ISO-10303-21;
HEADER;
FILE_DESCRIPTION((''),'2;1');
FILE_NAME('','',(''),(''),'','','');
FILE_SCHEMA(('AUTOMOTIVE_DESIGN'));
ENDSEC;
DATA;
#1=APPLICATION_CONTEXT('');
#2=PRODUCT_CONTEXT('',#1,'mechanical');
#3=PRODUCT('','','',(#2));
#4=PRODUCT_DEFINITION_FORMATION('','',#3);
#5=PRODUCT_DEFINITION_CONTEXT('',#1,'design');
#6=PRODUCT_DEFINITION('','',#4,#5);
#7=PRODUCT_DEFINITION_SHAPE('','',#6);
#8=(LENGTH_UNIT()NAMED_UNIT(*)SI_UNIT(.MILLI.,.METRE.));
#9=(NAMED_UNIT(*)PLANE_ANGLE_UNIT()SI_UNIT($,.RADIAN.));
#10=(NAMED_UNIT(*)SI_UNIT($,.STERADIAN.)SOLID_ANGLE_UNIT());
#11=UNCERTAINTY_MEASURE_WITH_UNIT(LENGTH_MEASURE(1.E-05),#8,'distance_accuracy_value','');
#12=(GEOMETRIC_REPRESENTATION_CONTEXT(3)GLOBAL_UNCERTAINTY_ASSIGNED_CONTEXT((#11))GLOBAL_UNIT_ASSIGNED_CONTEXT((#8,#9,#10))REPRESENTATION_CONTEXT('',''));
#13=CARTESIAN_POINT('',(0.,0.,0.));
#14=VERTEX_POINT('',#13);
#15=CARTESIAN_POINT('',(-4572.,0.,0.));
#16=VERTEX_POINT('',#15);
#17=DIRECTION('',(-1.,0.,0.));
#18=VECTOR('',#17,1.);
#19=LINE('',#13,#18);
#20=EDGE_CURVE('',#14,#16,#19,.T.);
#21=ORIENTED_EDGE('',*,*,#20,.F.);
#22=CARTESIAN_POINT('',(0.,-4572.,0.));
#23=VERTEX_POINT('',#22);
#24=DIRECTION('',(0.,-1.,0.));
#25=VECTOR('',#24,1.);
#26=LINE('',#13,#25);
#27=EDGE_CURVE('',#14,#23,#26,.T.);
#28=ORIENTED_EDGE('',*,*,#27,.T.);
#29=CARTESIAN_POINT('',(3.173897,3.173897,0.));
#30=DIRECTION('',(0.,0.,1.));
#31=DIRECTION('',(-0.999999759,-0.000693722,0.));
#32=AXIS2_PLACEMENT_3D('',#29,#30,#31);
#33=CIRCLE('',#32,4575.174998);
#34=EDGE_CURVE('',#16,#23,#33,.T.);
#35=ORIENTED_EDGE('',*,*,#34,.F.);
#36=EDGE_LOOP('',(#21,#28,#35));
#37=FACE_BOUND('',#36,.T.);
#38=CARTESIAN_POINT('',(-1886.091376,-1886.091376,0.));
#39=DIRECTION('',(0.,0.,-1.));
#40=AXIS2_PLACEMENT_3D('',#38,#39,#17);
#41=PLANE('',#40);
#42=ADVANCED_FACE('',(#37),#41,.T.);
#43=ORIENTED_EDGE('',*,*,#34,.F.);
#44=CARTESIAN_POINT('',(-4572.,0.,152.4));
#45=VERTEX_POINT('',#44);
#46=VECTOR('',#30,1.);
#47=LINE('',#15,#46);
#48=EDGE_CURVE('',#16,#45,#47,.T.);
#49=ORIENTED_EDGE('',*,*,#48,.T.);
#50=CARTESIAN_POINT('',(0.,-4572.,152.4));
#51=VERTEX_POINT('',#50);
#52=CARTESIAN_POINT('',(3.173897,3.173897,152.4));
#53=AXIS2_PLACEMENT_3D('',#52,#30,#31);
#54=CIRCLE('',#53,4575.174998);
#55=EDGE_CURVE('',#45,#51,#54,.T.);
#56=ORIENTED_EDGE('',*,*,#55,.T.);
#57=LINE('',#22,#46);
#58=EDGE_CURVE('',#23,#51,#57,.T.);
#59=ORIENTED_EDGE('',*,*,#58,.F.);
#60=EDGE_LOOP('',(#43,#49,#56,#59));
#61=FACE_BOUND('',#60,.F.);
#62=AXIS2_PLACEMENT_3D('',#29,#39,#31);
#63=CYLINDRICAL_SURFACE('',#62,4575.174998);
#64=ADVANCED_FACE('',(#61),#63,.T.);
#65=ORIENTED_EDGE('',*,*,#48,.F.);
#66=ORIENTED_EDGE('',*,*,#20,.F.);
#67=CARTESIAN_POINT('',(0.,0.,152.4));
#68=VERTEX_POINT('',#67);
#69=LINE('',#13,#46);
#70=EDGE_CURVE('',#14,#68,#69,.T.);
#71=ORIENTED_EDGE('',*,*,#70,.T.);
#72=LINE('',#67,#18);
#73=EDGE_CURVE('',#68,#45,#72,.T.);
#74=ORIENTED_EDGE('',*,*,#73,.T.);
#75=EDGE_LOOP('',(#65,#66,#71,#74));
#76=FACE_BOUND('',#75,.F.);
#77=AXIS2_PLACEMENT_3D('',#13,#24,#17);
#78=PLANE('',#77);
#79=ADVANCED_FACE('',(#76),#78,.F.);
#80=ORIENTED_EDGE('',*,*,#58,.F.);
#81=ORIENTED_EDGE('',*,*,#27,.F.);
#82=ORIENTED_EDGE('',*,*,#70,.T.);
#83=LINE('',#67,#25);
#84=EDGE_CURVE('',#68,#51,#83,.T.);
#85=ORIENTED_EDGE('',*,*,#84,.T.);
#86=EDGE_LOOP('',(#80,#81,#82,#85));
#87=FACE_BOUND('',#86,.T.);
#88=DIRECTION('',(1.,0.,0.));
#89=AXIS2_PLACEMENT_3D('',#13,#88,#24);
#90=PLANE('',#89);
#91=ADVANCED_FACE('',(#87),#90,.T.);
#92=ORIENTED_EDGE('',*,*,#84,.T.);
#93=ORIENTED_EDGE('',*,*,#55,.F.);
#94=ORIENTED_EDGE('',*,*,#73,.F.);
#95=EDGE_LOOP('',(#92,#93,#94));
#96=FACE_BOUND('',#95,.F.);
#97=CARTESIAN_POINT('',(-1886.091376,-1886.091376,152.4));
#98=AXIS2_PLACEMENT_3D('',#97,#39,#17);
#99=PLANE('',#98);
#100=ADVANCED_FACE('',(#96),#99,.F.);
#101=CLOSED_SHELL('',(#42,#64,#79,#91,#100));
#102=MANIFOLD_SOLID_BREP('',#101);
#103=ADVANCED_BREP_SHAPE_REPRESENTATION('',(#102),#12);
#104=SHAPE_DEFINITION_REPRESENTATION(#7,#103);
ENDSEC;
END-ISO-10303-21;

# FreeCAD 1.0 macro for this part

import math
import FreeCAD as App
import Part
import Sketcher
Q = App.Units.Quantity

doc = App.newDocument("Part")
body = doc.addObject("PartDesign::Body", "Body")

sketch1 = body.newObject("Sketcher::SketchObject", "Sketch")
sketch1.AttachmentSupport = (doc.getObject("XY_Plane"), [""])
sketch1.MapMode = "FlatFace"
sketch1.addGeometry(Part.LineSegment(App.Vector(0, -4572, 0), App.Vector(0, 0, 0)), False)
sketch1.addGeometry(Part.LineSegment(App.Vector(0, 0, 0), App.Vector(-4572, 0, 0)), False)
sketch1.addGeometry(Part.ArcOfCircle(Part.Circle(App.Vector(3, 3, 0), App.Vector(0, 0, 1), 4575), math.radians(-180), math.radians(-90)), False)
sketch1.addConstraint(Sketcher.Constraint("Coincident", 0, 2, 1, 1))
sketch1.addConstraint(Sketcher.Constraint("Coincident", 1, 2, 2, 1))
sketch1.addConstraint(Sketcher.Constraint("Coincident", 2, 2, 0, 1))
sketch1.addConstraint(Sketcher.Constraint("Vertical", 0))
sketch1.addConstraint(Sketcher.Constraint("Horizontal", 1))
sketch1.addConstraint(Sketcher.Constraint("Coincident", 0, 2, -1, 1))
sketch1.addConstraint(Sketcher.Constraint("Equal", 1, 0))
sketch1.addConstraint(Sketcher.Constraint("DistanceX", 1, 2, 1, 1, Q("180 in")))
sketch1.addConstraint(Sketcher.Constraint("Radius", 2, Q("180.1249999 in")))
pad1 = body.newObject("PartDesign::Pad", "Pad")
pad1.Profile = sketch1
pad1.Length = Q("6 in")

doc.recompute()
